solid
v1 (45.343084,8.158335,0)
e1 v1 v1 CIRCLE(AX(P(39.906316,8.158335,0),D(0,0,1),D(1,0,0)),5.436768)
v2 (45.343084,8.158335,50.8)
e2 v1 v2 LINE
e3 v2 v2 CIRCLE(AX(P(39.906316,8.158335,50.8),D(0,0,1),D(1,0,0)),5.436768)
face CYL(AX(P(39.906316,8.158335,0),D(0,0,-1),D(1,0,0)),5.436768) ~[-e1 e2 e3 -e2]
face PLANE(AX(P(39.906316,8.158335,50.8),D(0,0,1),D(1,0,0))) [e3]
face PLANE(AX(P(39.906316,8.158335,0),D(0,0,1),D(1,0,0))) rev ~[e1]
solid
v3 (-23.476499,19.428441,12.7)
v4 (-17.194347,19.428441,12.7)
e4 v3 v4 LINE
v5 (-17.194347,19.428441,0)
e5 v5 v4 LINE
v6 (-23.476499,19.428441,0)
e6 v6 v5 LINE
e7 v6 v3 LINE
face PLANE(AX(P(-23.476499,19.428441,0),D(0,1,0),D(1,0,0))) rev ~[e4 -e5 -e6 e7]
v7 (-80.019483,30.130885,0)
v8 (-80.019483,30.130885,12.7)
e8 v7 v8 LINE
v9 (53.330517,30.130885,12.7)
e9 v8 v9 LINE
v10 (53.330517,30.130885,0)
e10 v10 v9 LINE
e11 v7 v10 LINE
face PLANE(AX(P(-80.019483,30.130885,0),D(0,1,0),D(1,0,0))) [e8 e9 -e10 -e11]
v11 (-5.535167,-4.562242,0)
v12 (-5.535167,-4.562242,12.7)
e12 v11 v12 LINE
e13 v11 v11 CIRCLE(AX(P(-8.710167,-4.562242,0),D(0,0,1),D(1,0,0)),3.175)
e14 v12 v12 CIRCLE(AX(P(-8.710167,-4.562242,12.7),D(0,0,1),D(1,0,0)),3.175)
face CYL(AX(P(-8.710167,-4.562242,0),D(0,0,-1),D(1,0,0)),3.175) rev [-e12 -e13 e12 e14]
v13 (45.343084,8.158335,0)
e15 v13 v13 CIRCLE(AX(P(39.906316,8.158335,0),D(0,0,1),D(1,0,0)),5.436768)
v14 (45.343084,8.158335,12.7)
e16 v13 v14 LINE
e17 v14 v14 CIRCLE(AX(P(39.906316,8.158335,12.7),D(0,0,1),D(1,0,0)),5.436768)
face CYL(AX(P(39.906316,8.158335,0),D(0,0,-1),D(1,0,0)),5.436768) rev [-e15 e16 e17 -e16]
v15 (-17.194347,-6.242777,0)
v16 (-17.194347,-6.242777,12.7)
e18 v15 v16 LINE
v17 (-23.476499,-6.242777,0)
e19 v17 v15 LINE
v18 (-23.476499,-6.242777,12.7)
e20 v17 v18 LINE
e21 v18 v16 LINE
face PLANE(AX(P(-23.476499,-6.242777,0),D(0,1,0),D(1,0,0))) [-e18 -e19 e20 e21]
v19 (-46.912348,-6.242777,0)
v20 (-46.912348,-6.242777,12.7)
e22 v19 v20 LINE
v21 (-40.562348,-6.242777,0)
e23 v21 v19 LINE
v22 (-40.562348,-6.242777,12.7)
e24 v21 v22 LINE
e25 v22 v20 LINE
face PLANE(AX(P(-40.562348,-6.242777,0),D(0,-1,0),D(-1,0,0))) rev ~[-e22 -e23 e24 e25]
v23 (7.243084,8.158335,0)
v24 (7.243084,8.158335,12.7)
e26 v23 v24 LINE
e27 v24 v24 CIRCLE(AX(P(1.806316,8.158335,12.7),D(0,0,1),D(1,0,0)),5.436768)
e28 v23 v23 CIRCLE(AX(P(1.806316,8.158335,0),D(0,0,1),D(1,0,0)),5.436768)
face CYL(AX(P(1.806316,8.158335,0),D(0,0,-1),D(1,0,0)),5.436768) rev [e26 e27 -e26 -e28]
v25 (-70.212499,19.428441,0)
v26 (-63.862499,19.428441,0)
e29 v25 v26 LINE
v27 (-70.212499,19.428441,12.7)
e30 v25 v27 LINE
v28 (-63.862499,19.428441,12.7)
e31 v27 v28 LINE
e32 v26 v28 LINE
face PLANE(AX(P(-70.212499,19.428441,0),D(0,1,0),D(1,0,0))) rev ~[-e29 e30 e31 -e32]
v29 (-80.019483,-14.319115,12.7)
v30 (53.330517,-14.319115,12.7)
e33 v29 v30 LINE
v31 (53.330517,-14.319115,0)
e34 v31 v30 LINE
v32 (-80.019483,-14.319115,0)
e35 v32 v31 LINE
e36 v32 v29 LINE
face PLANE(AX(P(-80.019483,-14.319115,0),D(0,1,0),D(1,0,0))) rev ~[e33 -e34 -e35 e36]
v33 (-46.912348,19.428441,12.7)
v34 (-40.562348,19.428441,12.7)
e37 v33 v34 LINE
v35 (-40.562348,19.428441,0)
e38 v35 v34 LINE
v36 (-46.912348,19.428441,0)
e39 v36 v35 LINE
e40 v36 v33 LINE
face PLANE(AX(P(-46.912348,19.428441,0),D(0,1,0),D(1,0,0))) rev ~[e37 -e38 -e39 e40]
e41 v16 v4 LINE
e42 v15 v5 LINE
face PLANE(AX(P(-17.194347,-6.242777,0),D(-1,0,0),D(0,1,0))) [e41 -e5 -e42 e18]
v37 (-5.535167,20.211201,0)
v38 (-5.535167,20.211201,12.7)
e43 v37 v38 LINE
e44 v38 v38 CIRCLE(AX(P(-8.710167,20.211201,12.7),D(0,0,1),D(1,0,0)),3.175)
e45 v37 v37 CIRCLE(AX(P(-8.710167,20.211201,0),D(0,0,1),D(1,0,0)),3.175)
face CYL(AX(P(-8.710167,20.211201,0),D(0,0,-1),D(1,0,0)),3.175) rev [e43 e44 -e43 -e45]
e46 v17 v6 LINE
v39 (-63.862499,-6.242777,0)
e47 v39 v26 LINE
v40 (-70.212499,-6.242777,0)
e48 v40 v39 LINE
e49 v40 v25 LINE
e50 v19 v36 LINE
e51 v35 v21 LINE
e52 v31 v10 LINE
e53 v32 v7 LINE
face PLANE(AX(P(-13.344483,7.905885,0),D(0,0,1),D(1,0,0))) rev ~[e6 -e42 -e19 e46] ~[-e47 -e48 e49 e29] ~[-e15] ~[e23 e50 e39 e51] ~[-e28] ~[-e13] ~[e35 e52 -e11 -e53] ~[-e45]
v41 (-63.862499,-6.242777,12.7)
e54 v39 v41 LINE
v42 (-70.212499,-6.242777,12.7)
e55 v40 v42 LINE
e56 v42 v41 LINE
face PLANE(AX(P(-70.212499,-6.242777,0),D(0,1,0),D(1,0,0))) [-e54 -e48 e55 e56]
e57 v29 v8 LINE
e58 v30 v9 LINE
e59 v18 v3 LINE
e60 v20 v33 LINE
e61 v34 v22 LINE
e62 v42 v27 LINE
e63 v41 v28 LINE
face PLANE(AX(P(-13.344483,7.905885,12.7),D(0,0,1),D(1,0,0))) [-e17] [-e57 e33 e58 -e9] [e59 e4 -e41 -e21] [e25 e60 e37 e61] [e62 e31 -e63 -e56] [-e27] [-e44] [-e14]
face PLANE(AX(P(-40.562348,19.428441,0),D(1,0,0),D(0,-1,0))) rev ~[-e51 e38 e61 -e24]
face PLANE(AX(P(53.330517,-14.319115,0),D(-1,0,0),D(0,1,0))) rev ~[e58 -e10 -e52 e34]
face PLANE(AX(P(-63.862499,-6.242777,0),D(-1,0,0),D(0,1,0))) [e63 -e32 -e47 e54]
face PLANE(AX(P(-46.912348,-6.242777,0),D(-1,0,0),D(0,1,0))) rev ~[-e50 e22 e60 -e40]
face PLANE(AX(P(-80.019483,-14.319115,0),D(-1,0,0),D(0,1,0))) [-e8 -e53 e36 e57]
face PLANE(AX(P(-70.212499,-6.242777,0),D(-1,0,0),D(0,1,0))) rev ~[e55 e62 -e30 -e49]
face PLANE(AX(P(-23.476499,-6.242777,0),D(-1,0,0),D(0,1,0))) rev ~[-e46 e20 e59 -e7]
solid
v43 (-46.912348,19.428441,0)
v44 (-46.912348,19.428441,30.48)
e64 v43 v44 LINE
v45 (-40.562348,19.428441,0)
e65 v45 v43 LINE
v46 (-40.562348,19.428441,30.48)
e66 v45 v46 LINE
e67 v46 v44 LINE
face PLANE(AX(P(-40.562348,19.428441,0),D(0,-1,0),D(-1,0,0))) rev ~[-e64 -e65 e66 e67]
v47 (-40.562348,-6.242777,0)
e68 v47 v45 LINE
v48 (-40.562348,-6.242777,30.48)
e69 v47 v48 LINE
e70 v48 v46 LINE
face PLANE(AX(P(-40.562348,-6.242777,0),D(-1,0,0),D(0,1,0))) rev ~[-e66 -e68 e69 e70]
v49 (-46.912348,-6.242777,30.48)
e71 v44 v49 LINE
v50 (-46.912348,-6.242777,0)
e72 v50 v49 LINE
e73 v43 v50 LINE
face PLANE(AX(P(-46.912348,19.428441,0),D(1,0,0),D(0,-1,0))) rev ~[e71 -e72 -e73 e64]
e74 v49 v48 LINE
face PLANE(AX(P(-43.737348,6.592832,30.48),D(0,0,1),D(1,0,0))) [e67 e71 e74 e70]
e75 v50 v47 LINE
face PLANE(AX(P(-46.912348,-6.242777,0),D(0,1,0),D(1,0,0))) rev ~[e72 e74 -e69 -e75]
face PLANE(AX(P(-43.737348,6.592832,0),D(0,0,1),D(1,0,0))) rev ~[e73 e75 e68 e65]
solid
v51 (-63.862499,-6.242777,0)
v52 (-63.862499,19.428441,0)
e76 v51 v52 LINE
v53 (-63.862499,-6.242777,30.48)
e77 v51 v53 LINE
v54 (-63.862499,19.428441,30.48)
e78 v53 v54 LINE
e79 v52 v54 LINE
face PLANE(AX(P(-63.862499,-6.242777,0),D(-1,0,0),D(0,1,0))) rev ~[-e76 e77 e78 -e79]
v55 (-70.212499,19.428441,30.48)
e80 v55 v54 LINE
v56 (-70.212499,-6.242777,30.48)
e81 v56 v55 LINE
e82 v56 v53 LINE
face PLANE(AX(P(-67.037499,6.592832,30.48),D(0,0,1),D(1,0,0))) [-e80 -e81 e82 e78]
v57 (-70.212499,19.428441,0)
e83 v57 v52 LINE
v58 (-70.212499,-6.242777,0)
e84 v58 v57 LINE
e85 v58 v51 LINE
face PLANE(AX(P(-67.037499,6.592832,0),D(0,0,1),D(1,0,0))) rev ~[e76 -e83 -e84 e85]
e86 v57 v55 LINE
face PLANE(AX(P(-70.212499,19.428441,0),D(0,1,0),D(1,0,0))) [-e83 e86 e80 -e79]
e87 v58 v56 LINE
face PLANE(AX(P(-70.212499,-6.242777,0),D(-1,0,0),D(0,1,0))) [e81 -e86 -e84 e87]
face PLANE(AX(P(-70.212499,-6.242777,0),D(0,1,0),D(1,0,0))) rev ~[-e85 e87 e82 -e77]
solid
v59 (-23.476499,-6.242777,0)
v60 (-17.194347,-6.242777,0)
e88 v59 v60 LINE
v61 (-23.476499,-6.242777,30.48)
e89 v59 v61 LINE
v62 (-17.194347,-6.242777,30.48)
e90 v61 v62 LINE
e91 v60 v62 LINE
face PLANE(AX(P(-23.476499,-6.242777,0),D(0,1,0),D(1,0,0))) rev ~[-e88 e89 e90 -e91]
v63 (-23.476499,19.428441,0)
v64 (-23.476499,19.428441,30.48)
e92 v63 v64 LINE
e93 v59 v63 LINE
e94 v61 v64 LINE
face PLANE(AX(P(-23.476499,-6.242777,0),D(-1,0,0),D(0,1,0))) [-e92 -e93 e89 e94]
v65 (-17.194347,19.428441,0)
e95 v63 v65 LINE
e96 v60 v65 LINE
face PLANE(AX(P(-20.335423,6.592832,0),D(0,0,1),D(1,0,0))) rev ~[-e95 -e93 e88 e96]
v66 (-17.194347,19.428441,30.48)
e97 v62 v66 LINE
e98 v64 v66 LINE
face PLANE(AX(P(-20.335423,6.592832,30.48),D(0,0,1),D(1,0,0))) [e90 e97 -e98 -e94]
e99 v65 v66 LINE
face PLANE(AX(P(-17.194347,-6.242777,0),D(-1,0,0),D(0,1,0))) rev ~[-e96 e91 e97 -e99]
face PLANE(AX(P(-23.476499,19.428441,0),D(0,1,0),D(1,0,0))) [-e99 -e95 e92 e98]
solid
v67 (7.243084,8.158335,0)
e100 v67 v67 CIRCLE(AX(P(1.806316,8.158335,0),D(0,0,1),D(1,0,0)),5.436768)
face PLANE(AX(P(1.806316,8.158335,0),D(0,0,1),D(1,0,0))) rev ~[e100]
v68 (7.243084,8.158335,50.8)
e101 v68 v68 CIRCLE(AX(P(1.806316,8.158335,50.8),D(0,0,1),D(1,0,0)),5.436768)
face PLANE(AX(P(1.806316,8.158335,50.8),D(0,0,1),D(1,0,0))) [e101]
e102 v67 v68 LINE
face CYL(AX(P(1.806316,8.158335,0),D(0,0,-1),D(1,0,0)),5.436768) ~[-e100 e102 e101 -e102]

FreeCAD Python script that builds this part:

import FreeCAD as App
import Part
import Sketcher

V = App.Vector
Q = App.Units.Quantity

doc = App.newDocument("Part")
body = doc.addObject("PartDesign::Body", "Body")
body.AllowCompound = True

# Sketch on XY plane
sketch1 = doc.addObject("Sketcher::SketchObject", "Sketch")
body.addObject(sketch1)
sketch1.AttachmentSupport = (doc.XY_Plane, [""])
sketch1.MapMode = "FlatFace"
sketch1.addGeometry(Part.LineSegment(V(-70.212499, 19.428441, 0), V(-70.212499, -6.242777, 0)), False)
sketch1.addGeometry(Part.LineSegment(V(-70.212499, -6.242777, 0), V(-63.862499, -6.242777, 0)), False)
sketch1.addGeometry(Part.LineSegment(V(-63.862499, -6.242777, 0), V(-63.862499, 19.428441, 0)), False)
sketch1.addGeometry(Part.LineSegment(V(-63.862499, 19.428441, 0), V(-70.212499, 19.428441, 0)), False)
sketch1.addGeometry(Part.LineSegment(V(-40.562348, 19.428441, 0), V(-46.912348, 19.428441, 0)), False)
sketch1.addGeometry(Part.LineSegment(V(-46.912348, 19.428441, 0), V(-46.912348, -6.242777, 0)), False)
sketch1.addGeometry(Part.LineSegment(V(-46.912348, -6.242777, 0), V(-40.562348, -6.242777, 0)), False)
sketch1.addGeometry(Part.LineSegment(V(-40.562348, -6.242777, 0), V(-40.562348, 19.428441, 0)), False)
sketch1.addGeometry(Part.LineSegment(V(-23.476499, 19.428441, 0), V(-23.476499, -6.242777, 0)), False)
sketch1.addGeometry(Part.LineSegment(V(-23.476499, -6.242777, 0), V(-17.194347, -6.242777, 0)), False)
sketch1.addGeometry(Part.LineSegment(V(-17.194347, -6.242777, 0), V(-17.194347, 19.428441, 0)), False)
sketch1.addGeometry(Part.LineSegment(V(-17.194347, 19.428441, 0), V(-23.476499, 19.428441, 0)), False)
sketch1.addConstraint(Sketcher.Constraint("Coincident", 0, 2, 1, 1))
sketch1.addConstraint(Sketcher.Constraint("Coincident", 1, 2, 2, 1))
sketch1.addConstraint(Sketcher.Constraint("Coincident", 2, 2, 3, 1))
sketch1.addConstraint(Sketcher.Constraint("Coincident", 3, 2, 0, 1))
sketch1.addConstraint(Sketcher.Constraint("Coincident", 4, 2, 5, 1))
sketch1.addConstraint(Sketcher.Constraint("Coincident", 5, 2, 6, 1))
sketch1.addConstraint(Sketcher.Constraint("Coincident", 6, 2, 7, 1))
sketch1.addConstraint(Sketcher.Constraint("Coincident", 7, 2, 4, 1))
sketch1.addConstraint(Sketcher.Constraint("Coincident", 8, 2, 9, 1))
sketch1.addConstraint(Sketcher.Constraint("Coincident", 9, 2, 10, 1))
sketch1.addConstraint(Sketcher.Constraint("Coincident", 10, 2, 11, 1))
sketch1.addConstraint(Sketcher.Constraint("Coincident", 11, 2, 8, 1))
sketch1.addConstraint(Sketcher.Constraint("Vertical", 0))
sketch1.addConstraint(Sketcher.Constraint("Horizontal", 1))
sketch1.addConstraint(Sketcher.Constraint("Vertical", 2))
sketch1.addConstraint(Sketcher.Constraint("Horizontal", 3))
sketch1.addConstraint(Sketcher.Constraint("Horizontal", 4))
sketch1.addConstraint(Sketcher.Constraint("Vertical", 5))
sketch1.addConstraint(Sketcher.Constraint("Horizontal", 6))
sketch1.addConstraint(Sketcher.Constraint("Vertical", 7))
sketch1.addConstraint(Sketcher.Constraint("Vertical", 8))
sketch1.addConstraint(Sketcher.Constraint("Horizontal", 9))
sketch1.addConstraint(Sketcher.Constraint("Vertical", 10))
sketch1.addConstraint(Sketcher.Constraint("Horizontal", 11))
sketch1.addConstraint(Sketcher.Constraint("Horizontal", 3, 2, 4, 2))
sketch1.addConstraint(Sketcher.Constraint("Horizontal", 1, 2, 5, 2))
sketch1.addConstraint(Sketcher.Constraint("Horizontal", 6, 2, 8, 2))
sketch1.addConstraint(Sketcher.Constraint("Horizontal", 7, 2, 10, 2))
sketch1.addConstraint(Sketcher.Constraint("Equal", 3, 4))
sketch1.addConstraint(Sketcher.Constraint("DistanceX", 1, 1, 1, 2, Q("0.25 in")))
sketch1.addConstraint(Sketcher.Constraint("DistanceX", 1, 2, 8, 2, Q("1.59 in")))
sketch1.addConstraint(Sketcher.Constraint("DistanceX", 6, 2, 9, 2, Q("0.92 in")))
sketch1.addConstraint(Sketcher.Constraint("DistanceX", 9, 1, 9, 2, Q("6.282151 mm")))
sketch1.addConstraint(Sketcher.Constraint("DistanceX", 0, 2, -1, 1, Q("70.212499 mm")))
sketch1.addConstraint(Sketcher.Constraint("DistanceY", 0, 2, 0, 1, Q("25.671218 mm")))
sketch1.addConstraint(Sketcher.Constraint("DistanceY", -1, 1, 2, 2, Q("19.428441 mm")))
pad1 = doc.addObject("PartDesign::Pad", "Pad")
body.addObject(pad1)
pad1.Profile = sketch1
pad1.Length = Q("1.2 in")
body2 = doc.addObject("PartDesign::Body", "Body001")
body2.AllowCompound = True

# Sketch on XY plane
sketch2 = doc.addObject("Sketcher::SketchObject", "Sketch001")
body2.addObject(sketch2)
sketch2.AttachmentSupport = (doc.getObject("XY_Plane001"), [""])
sketch2.MapMode = "FlatFace"
sketch2.addGeometry(Part.Circle(V(1.806316, 8.158335, 0), V(0, 0, 1), 5.436768), False)
sketch2.addGeometry(Part.Circle(V(39.906316, 8.158335, 0), V(0, 0, 1), 5.436768), False)
sketch2.addConstraint(Sketcher.Constraint("Equal", 0, 1))
sketch2.addConstraint(Sketcher.Constraint("Horizontal", 0, 3, 1, 3))
sketch2.addConstraint(Sketcher.Constraint("DistanceX", 0, 3, 1, 3, Q("1.5 in")))
sketch2.addConstraint(Sketcher.Constraint("Diameter", 0, Q("10.873536 mm")))
sketch2.addConstraint(Sketcher.Constraint("DistanceX", -1, 1, 0, 3, Q("1.806316 mm")))
sketch2.addConstraint(Sketcher.Constraint("DistanceY", -1, 1, 0, 3, Q("8.158335 mm")))
pad2 = doc.addObject("PartDesign::Pad", "Pad001")
body2.addObject(pad2)
pad2.Profile = sketch2
pad2.Length = Q("2 in")
body3 = doc.addObject("PartDesign::Body", "Body002")

# Sketch on XY plane
sketch3 = doc.addObject("Sketcher::SketchObject", "Sketch002")
body3.addObject(sketch3)
sketch3.AttachmentSupport = (doc.getObject("XY_Plane002"), [""])
sketch3.MapMode = "FlatFace"
sketch3.addGeometry(Part.LineSegment(V(-80.019483, 30.130885, 0), V(-80.019483, -14.319115, 0)), False)
sketch3.addGeometry(Part.LineSegment(V(-80.019483, -14.319115, 0), V(53.330517, -14.319115, 0)), False)
sketch3.addGeometry(Part.LineSegment(V(53.330517, -14.319115, 0), V(53.330517, 30.130885, 0)), False)
sketch3.addGeometry(Part.LineSegment(V(53.330517, 30.130885, 0), V(-80.019483, 30.130885, 0)), False)
sketch3.addGeometry(Part.LineSegment(V(-63.862499, -6.242777, 0), V(-70.212499, -6.242777, 0)), False)
sketch3.addGeometry(Part.LineSegment(V(-70.212499, -6.242777, 0), V(-70.212499, 19.428441, 0)), False)
sketch3.addGeometry(Part.LineSegment(V(-70.212499, 19.428441, 0), V(-63.862499, 19.428441, 0)), False)
sketch3.addGeometry(Part.LineSegment(V(-63.862499, 19.428441, 0), V(-63.862499, -6.242777, 0)), False)
sketch3.addGeometry(Part.LineSegment(V(-46.912348, -6.242777, 0), V(-46.912348, 19.428441, 0)), False)
sketch3.addGeometry(Part.LineSegment(V(-46.912348, 19.428441, 0), V(-40.562348, 19.428441, 0)), False)
sketch3.addGeometry(Part.LineSegment(V(-40.562348, 19.428441, 0), V(-40.562348, -6.242777, 0)), False)
sketch3.addGeometry(Part.LineSegment(V(-40.562348, -6.242777, 0), V(-46.912348, -6.242777, 0)), False)
sketch3.addGeometry(Part.LineSegment(V(-17.194347, -6.242777, 0), V(-23.476499, -6.242777, 0)), False)
sketch3.addGeometry(Part.LineSegment(V(-23.476499, -6.242777, 0), V(-23.476499, 19.428441, 0)), False)
sketch3.addGeometry(Part.LineSegment(V(-23.476499, 19.428441, 0), V(-17.194347, 19.428441, 0)), False)
sketch3.addGeometry(Part.LineSegment(V(-17.194347, 19.428441, 0), V(-17.194347, -6.242777, 0)), False)
sketch3.addGeometry(Part.Circle(V(-8.710167, -4.562242, 0), V(0, 0, 1), 3.175), False)
sketch3.addGeometry(Part.Circle(V(1.806316, 8.158335, 0), V(0, 0, 1), 5.436768), False)
sketch3.addGeometry(Part.Circle(V(39.906316, 8.158335, 0), V(0, 0, 1), 5.436768), False)
sketch3.addGeometry(Part.Circle(V(-8.710167, 20.211201, 0), V(0, 0, 1), 3.175), False)
sketch3.addConstraint(Sketcher.Constraint("Coincident", 0, 2, 1, 1))
sketch3.addConstraint(Sketcher.Constraint("Coincident", 1, 2, 2, 1))
sketch3.addConstraint(Sketcher.Constraint("Coincident", 2, 2, 3, 1))
sketch3.addConstraint(Sketcher.Constraint("Coincident", 3, 2, 0, 1))
sketch3.addConstraint(Sketcher.Constraint("Coincident", 4, 2, 5, 1))
sketch3.addConstraint(Sketcher.Constraint("Coincident", 5, 2, 6, 1))
sketch3.addConstraint(Sketcher.Constraint("Coincident", 6, 2, 7, 1))
sketch3.addConstraint(Sketcher.Constraint("Coincident", 7, 2, 4, 1))
sketch3.addConstraint(Sketcher.Constraint("Coincident", 8, 2, 9, 1))
sketch3.addConstraint(Sketcher.Constraint("Coincident", 9, 2, 10, 1))
sketch3.addConstraint(Sketcher.Constraint("Coincident", 10, 2, 11, 1))
sketch3.addConstraint(Sketcher.Constraint("Coincident", 11, 2, 8, 1))
sketch3.addConstraint(Sketcher.Constraint("Coincident", 12, 2, 13, 1))
sketch3.addConstraint(Sketcher.Constraint("Coincident", 13, 2, 14, 1))
sketch3.addConstraint(Sketcher.Constraint("Coincident", 14, 2, 15, 1))
sketch3.addConstraint(Sketcher.Constraint("Coincident", 15, 2, 12, 1))
sketch3.addConstraint(Sketcher.Constraint("Vertical", 0))
sketch3.addConstraint(Sketcher.Constraint("Horizontal", 1))
sketch3.addConstraint(Sketcher.Constraint("Vertical", 2))
sketch3.addConstraint(Sketcher.Constraint("Horizontal", 3))
sketch3.addConstraint(Sketcher.Constraint("Horizontal", 4))
sketch3.addConstraint(Sketcher.Constraint("Vertical", 5))
sketch3.addConstraint(Sketcher.Constraint("Horizontal", 6))
sketch3.addConstraint(Sketcher.Constraint("Vertical", 7))
sketch3.addConstraint(Sketcher.Constraint("Vertical", 8))
sketch3.addConstraint(Sketcher.Constraint("Horizontal", 9))
sketch3.addConstraint(Sketcher.Constraint("Vertical", 10))
sketch3.addConstraint(Sketcher.Constraint("Horizontal", 11))
sketch3.addConstraint(Sketcher.Constraint("Horizontal", 12))
sketch3.addConstraint(Sketcher.Constraint("Vertical", 13))
sketch3.addConstraint(Sketcher.Constraint("Horizontal", 14))
sketch3.addConstraint(Sketcher.Constraint("Vertical", 15))
sketch3.addConstraint(Sketcher.Constraint("Equal", 17, 18))
sketch3.addConstraint(Sketcher.Constraint("Equal", 16, 19))
sketch3.addConstraint(Sketcher.Constraint("Horizontal", 17, 3, 18, 3))
sketch3.addConstraint(Sketcher.Constraint("Horizontal", 6, 2, 8, 2))
sketch3.addConstraint(Sketcher.Constraint("Horizontal", 7, 2, 10, 2))
sketch3.addConstraint(Sketcher.Constraint("Horizontal", 11, 2, 12, 2))
sketch3.addConstraint(Sketcher.Constraint("Horizontal", 9, 2, 13, 2))
sketch3.addConstraint(Sketcher.Constraint("Vertical", 16, 3, 19, 3))
sketch3.addConstraint(Sketcher.Constraint("Equal", 6, 9))
sketch3.addConstraint(Sketcher.Constraint("Diameter", 16, Q("0.25 in")))
sketch3.addConstraint(Sketcher.Constraint("DistanceX", 1, 1, 1, 2, Q("5.25 in")))
sketch3.addConstraint(Sketcher.Constraint("DistanceX", 4, 2, 4, 1, Q("0.25 in")))
sketch3.addConstraint(Sketcher.Constraint("DistanceY", 0, 2, 0, 1, Q("1.75 in")))
sketch3.addConstraint(Sketcher.Constraint("DistanceX", 17, 3, 18, 3, Q("1.5 in")))
sketch3.addConstraint(Sketcher.Constraint("DistanceX", 9, 2, 14, 2, Q("0.92 in")))
sketch3.addConstraint(Sketcher.Constraint("Diameter", 17, Q("10.873536 mm")))
sketch3.addConstraint(Sketcher.Constraint("DistanceX", 12, 2, 12, 1, Q("6.282151 mm")))
sketch3.addConstraint(Sketcher.Constraint("DistanceY", -1, 1, 19, 3, Q("20.211201 mm")))
sketch3.addConstraint(Sketcher.Constraint("DistanceX", 4, 2, -1, 1, Q("70.212499 mm")))
sketch3.addConstraint(Sketcher.Constraint("DistanceX", 12, 2, -1, 1, Q("23.476499 mm")))
sketch3.addConstraint(Sketcher.Constraint("DistanceX", 0, 2, 17, 3, Q("81.825799 mm")))
sketch3.addConstraint(Sketcher.Constraint("DistanceY", 5, 1, 5, 2, Q("25.671218 mm")))
sketch3.addConstraint(Sketcher.Constraint("DistanceY", -1, 1, 5, 2, Q("19.428441 mm")))
sketch3.addConstraint(Sketcher.Constraint("DistanceY", 0, 2, 17, 3, Q("22.47745 mm")))
sketch3.addConstraint(Sketcher.Constraint("DistanceY", 4, 2, 3, 2, Q("36.373662 mm")))
sketch3.addConstraint(Sketcher.Constraint("DistanceX", 4, 2, 16, 3, Q("61.502332 mm")))
sketch3.addConstraint(Sketcher.Constraint("DistanceY", 16, 3, -1, 1, Q("4.562242 mm")))
sketch3.addConstraint(Sketcher.Constraint("DistanceX", -1, 1, 17, 3, Q("1.806316 mm")))
pad3 = doc.addObject("PartDesign::Pad", "Pad002")
body3.addObject(pad3)
pad3.Profile = sketch3
pad3.Length = Q("0.5 in")

doc.recompute()
